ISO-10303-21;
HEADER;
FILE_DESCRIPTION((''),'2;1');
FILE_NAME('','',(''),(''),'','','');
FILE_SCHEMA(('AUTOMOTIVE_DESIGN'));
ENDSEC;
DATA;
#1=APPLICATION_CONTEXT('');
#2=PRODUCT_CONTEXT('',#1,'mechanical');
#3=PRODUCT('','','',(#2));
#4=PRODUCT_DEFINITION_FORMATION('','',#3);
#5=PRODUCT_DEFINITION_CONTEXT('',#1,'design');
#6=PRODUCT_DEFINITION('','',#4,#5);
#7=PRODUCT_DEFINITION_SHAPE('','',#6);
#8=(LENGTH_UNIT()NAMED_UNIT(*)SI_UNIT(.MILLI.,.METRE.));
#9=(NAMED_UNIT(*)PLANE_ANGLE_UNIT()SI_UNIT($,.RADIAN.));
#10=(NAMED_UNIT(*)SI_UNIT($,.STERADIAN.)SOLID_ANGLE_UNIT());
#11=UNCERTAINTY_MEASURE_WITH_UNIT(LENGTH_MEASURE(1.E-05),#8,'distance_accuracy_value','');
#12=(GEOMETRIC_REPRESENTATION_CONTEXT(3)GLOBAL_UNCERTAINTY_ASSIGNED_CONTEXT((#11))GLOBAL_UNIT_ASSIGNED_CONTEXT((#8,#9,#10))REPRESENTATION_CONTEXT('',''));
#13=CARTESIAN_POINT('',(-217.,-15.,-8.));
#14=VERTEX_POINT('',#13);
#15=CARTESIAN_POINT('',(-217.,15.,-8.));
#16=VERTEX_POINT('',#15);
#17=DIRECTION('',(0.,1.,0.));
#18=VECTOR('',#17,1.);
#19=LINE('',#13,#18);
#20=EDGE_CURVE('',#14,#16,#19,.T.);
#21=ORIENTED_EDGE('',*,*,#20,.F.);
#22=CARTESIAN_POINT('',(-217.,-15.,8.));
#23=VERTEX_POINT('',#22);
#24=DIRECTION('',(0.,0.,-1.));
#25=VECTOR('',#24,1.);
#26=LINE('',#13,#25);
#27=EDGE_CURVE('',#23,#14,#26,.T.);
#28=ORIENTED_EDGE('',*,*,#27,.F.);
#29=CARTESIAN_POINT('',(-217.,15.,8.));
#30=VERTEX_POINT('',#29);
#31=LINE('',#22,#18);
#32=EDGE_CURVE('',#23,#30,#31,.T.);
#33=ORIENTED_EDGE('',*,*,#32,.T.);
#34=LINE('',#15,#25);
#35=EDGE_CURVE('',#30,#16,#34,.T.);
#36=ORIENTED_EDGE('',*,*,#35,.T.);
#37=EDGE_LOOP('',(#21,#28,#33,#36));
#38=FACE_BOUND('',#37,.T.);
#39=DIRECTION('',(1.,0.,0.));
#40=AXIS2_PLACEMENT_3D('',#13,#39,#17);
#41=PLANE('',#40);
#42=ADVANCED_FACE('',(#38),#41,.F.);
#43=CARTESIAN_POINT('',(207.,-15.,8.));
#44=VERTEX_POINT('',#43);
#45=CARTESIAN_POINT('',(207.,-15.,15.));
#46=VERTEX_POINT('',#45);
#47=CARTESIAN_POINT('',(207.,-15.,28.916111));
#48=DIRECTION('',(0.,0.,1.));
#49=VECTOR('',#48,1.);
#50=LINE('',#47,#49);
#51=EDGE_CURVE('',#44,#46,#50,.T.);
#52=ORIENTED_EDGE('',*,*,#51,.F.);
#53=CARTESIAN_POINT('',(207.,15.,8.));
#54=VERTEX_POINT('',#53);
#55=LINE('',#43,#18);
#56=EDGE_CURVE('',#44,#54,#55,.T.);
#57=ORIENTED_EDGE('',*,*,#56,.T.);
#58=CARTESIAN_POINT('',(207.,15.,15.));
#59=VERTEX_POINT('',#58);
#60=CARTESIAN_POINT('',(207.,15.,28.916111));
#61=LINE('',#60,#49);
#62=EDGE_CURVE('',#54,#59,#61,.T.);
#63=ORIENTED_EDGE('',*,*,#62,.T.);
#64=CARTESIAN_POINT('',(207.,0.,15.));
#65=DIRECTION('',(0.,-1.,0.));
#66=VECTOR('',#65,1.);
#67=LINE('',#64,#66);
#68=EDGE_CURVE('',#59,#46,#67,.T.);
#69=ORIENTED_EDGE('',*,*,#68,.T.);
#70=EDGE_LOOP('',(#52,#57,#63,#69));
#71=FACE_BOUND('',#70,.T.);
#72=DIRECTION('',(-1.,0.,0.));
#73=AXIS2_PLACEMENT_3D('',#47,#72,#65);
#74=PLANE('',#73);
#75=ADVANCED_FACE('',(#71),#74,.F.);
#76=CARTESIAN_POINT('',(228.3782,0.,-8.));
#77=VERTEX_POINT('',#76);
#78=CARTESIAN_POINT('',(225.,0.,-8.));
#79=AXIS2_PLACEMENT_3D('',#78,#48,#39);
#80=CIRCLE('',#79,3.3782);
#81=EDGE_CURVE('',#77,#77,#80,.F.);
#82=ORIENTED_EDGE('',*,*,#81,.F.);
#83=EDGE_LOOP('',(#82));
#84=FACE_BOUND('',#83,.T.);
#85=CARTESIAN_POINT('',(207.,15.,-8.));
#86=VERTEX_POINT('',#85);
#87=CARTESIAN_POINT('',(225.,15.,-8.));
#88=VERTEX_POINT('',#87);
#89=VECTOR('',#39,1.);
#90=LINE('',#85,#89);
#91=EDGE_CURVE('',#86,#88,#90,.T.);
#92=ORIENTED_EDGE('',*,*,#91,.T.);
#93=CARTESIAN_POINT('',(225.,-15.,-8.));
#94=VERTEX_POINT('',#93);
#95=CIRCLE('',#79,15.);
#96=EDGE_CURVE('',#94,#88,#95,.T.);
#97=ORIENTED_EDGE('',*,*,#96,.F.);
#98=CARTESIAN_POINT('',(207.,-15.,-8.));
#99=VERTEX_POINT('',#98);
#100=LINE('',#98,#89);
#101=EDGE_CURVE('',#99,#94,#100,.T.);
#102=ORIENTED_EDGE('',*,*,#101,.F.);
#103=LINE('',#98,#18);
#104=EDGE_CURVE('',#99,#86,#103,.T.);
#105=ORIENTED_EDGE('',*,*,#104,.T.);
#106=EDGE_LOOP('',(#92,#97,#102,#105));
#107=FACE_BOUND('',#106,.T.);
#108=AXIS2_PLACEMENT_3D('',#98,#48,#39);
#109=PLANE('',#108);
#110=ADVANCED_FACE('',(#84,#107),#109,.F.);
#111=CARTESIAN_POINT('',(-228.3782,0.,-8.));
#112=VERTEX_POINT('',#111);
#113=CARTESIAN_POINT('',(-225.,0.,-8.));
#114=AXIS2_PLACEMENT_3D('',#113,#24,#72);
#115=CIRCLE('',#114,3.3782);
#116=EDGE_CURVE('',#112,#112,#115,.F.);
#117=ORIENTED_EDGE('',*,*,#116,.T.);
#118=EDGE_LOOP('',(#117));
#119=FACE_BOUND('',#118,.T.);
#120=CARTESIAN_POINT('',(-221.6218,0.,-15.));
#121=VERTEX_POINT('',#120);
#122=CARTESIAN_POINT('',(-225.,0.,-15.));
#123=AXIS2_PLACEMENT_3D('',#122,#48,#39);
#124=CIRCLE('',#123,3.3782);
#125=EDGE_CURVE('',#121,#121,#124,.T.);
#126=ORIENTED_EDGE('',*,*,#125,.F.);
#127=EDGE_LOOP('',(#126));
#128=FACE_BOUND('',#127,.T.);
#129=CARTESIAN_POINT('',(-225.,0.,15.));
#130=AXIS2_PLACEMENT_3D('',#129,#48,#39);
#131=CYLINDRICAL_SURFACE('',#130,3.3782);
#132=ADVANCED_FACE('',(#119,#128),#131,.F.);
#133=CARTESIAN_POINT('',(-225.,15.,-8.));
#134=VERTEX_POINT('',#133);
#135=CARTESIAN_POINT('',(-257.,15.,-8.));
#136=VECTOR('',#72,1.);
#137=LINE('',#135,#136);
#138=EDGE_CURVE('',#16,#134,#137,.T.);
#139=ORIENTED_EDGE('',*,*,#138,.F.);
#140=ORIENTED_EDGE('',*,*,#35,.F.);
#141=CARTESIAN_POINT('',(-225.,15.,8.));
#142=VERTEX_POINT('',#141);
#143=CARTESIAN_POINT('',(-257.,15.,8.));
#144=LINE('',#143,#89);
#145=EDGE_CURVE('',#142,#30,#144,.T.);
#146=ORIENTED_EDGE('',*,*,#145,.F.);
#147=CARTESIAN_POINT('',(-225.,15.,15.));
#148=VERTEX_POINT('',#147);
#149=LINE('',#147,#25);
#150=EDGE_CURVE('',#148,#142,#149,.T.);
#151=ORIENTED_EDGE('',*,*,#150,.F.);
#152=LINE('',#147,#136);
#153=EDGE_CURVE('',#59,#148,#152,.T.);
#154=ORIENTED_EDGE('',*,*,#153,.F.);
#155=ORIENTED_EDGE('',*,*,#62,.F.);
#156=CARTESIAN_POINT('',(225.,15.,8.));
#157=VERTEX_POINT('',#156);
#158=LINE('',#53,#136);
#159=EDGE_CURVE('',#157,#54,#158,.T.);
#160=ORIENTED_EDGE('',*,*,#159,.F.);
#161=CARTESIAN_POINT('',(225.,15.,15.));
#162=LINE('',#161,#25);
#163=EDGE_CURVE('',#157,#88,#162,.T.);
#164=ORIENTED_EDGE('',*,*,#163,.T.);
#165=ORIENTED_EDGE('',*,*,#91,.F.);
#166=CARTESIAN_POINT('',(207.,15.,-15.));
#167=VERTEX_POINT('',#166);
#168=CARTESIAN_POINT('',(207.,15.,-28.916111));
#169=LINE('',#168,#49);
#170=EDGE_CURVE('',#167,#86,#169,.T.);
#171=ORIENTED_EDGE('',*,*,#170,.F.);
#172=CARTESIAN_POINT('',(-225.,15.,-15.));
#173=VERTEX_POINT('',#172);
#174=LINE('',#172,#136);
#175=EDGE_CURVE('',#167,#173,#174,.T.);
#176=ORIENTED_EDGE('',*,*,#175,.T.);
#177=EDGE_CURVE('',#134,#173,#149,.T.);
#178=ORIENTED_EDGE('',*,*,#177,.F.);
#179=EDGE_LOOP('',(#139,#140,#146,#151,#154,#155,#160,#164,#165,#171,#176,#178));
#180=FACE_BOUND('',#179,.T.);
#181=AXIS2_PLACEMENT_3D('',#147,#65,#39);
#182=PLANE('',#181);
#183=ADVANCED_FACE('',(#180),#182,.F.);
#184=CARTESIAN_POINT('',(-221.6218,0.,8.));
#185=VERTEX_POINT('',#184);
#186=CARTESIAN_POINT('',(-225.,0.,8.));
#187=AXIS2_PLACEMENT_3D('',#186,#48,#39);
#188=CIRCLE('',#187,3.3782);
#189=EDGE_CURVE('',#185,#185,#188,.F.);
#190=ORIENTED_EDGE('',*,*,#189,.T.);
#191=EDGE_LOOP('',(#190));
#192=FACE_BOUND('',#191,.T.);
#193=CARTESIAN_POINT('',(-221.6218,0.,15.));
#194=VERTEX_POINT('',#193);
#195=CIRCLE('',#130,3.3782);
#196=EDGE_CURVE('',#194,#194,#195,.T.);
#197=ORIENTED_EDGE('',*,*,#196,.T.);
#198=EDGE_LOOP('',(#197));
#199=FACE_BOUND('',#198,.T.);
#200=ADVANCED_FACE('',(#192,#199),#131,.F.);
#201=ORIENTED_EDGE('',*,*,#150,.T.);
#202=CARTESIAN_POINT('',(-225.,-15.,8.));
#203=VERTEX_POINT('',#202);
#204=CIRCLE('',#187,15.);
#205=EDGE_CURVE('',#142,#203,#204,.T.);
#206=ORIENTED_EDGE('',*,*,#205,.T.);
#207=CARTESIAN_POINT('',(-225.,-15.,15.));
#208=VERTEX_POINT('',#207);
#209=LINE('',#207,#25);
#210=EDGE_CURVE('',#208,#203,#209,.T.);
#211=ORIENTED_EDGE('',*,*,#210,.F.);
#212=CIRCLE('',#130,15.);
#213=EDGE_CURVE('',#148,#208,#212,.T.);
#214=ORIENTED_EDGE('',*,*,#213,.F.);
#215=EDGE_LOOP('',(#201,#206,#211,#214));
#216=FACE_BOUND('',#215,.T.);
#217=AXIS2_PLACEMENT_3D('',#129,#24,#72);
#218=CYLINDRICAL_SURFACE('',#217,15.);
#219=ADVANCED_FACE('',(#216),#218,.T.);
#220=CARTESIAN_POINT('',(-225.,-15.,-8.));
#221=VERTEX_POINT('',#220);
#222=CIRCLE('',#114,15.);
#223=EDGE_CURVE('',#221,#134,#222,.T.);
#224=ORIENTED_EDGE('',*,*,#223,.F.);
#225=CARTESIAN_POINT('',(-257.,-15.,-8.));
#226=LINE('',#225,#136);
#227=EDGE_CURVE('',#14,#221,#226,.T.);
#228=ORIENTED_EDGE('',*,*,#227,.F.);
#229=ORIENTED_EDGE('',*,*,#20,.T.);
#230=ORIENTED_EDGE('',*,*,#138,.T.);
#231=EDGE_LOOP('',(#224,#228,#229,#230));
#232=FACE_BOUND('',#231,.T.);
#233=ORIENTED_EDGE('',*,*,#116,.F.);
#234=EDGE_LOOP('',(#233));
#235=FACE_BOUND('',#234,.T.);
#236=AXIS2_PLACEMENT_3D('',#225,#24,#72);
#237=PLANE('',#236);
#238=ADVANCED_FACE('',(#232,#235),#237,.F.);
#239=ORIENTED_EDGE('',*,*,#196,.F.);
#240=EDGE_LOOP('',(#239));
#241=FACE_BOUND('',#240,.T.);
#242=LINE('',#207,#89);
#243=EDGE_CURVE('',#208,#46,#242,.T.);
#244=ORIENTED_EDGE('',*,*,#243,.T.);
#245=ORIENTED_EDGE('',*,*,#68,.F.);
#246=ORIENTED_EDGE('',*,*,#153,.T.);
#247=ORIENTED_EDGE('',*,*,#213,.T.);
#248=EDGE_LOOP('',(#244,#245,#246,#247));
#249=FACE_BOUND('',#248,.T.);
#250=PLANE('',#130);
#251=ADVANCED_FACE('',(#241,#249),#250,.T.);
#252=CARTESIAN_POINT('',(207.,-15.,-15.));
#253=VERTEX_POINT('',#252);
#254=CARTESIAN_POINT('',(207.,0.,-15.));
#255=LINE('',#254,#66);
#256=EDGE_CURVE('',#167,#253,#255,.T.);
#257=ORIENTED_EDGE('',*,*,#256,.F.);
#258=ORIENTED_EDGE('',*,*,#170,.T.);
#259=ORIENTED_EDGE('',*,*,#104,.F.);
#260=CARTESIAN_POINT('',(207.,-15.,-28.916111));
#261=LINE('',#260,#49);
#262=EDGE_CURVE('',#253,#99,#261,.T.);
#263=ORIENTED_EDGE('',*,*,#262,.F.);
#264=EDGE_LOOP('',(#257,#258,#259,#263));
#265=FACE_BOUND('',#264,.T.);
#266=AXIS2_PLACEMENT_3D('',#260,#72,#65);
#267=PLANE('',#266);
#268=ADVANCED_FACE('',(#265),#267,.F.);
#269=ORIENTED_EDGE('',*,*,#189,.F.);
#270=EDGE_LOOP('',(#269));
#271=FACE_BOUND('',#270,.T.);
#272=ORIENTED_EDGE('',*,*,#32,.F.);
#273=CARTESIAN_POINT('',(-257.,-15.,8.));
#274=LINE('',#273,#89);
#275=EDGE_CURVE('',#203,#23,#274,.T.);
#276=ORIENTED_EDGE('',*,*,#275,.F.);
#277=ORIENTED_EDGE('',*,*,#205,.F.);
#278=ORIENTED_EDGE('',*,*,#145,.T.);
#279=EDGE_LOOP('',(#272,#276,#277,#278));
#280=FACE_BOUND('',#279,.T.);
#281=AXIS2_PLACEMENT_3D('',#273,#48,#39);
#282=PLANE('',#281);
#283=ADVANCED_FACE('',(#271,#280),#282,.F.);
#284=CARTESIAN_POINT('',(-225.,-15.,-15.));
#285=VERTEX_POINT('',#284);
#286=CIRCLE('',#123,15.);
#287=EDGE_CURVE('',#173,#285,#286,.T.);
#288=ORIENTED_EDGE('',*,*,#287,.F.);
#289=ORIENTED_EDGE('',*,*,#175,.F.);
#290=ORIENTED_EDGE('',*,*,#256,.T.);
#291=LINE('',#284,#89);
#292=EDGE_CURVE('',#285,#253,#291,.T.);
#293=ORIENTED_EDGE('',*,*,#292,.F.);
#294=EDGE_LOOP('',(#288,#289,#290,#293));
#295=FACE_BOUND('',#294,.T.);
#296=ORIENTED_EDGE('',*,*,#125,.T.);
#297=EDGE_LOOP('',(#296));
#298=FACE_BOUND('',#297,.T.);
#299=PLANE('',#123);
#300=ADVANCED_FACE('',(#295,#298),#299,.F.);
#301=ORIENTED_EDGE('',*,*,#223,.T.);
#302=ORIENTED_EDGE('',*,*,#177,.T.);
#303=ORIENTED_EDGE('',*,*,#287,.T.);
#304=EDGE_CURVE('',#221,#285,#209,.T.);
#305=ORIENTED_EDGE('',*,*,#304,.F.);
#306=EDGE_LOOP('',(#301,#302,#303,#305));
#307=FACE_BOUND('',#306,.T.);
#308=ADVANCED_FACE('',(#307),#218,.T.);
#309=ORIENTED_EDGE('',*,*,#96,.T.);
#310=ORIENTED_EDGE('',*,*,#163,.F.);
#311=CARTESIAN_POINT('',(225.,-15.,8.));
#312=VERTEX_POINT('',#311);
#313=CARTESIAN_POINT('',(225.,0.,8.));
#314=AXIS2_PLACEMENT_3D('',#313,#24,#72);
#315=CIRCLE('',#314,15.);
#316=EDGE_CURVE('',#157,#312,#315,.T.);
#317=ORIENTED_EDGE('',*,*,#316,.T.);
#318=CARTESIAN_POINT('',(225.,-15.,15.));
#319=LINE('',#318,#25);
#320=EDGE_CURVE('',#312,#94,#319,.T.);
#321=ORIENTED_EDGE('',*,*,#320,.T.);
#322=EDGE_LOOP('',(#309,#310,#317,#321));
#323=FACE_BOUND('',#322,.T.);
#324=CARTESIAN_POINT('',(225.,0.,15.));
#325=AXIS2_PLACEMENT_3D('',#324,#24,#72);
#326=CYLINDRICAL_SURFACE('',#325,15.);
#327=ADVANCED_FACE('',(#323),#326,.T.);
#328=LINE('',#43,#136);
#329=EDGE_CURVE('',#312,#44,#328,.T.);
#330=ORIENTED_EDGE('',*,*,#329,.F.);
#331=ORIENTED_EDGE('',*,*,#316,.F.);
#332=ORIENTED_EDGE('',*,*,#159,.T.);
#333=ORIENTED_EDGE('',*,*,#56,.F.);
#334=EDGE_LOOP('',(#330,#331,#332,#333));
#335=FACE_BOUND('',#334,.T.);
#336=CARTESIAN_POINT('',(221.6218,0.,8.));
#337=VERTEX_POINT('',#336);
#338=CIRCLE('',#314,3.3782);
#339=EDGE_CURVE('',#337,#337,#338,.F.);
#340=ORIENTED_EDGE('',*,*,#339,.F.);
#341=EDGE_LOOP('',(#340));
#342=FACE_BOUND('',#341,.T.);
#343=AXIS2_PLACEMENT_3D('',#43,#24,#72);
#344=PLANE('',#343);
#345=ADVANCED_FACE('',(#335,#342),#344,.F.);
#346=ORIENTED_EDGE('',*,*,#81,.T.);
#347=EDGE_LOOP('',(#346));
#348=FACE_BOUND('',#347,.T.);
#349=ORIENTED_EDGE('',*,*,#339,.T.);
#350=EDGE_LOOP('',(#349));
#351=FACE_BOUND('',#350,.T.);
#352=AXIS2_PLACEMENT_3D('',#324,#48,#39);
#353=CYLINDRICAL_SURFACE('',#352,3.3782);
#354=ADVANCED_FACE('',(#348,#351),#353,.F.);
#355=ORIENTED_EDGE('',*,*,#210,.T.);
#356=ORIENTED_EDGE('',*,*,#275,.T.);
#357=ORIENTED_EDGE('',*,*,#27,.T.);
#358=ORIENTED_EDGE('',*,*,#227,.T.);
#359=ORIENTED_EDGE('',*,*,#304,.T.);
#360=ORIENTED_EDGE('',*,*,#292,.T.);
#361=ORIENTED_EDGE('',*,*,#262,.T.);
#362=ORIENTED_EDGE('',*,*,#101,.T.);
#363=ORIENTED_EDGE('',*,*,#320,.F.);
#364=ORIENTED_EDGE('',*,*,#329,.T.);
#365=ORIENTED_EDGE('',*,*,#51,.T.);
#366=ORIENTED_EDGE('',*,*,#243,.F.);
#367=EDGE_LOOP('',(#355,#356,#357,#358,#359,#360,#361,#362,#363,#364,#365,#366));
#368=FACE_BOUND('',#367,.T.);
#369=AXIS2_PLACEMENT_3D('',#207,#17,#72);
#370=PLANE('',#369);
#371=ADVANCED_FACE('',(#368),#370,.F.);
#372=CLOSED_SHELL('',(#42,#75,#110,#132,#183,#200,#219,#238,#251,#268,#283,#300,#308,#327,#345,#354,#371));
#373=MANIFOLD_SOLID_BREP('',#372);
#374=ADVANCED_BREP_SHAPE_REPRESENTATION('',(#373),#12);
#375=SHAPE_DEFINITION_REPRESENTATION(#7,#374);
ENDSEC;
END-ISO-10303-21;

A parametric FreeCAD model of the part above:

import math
import FreeCAD as App
import Part
import Sketcher
from FreeCAD import Vector


def add_polygon(sketch, points):
    """Adds a closed chain of lines whose ends are joined by coincident constraints."""
    first, n = sketch.GeometryCount, len(points)
    for a, b in zip(points, points[1:] + points[:1]):
        sketch.addGeometry(Part.LineSegment(App.Vector(*a, 0), App.Vector(*b, 0)), False)
    for i in range(n):
        sketch.addConstraint(Sketcher.Constraint("Coincident", first + i, 2, first + (i + 1) % n, 1))

doc = App.newDocument("Part")
body = doc.addObject("PartDesign::Body", "Body")

sketch1 = body.newObject("Sketcher::SketchObject", "Sketch")
sketch1.AttachmentSupport = (doc.getObject("XY_Plane"), [""])
sketch1.MapMode = "FlatFace"
sketch1.addGeometry([
    Part.LineSegment(Vector(225, 15, 0), Vector(-225, 15, 0)),
    Part.ArcOfCircle(Part.Circle(Vector(-225, 0, 0), Vector(0, 0, 1), 15), math.radians(90), math.radians(270)),
    Part.LineSegment(Vector(-225, -15, 0), Vector(225, -15, 0)),
    Part.ArcOfCircle(Part.Circle(Vector(225, 0, 0), Vector(0, 0, 1), 15), math.radians(-90), math.radians(90)),
], False)
sketch1.addConstraint([
    Sketcher.Constraint("Tangent", 0, 2, 1, 1),
    Sketcher.Constraint("Tangent", 1, 2, 2, 1),
    Sketcher.Constraint("Tangent", 2, 2, 3, 1),
    Sketcher.Constraint("Tangent", 3, 2, 0, 1),
    Sketcher.Constraint("Horizontal", 0),
    Sketcher.Constraint("Horizontal", 2),
    Sketcher.Constraint("Symmetric", 1, 3, 3, 3, -1, 1),
    Sketcher.Constraint("Radius", 1, 15.0),
    Sketcher.Constraint("DistanceX", 0, 2, 0, 1, 450.0),
])
pad1 = body.newObject("PartDesign::Pad", "Pad")
pad1.Profile = sketch1
pad1.Length = 30
pad1.Midplane = True

sketch2 = body.newObject("Sketcher::SketchObject", "Sketch001")
sketch2.AttachmentSupport = (doc.getObject("XY_Plane"), [""])
sketch2.MapMode = "FlatFace"
sketch2.AttachmentOffset = App.Placement(Vector(0, 0, 15), App.Rotation())
sketch2.addGeometry([
    Part.Circle(Vector(-225, 0, 0), Vector(0, 0, 1), 3.4),
    Part.Circle(Vector(225, 0, 0), Vector(0, 0, 1), 3.4),
], False)
sketch2.addConstraint([
    Sketcher.Constraint("Equal", 0, 1),
    Sketcher.Constraint("Symmetric", 0, 3, 1, 3, -1, 1),
    Sketcher.Constraint("PointOnObject", 0, 3, -1),
    Sketcher.Constraint("DistanceX", 0, 3, -1, 1, 225.0),
    Sketcher.Constraint("Diameter", 0, 6.7564),
])
doc.recompute()
hole = body.newObject("PartDesign::Hole", "Hole")
hole.Profile = sketch2
hole.ThreadType = "None"
hole.Diameter = 6.7564
hole.DepthType = "ThroughAll"

sketch3 = body.newObject("Sketcher::SketchObject", "Sketch002")
sketch3.AttachmentSupport = (doc.getObject("XZ_Plane"), [""])
sketch3.MapMode = "FlatFace"
sketch3.AttachmentOffset = App.Placement(Vector(0, 0, -15), App.Rotation())
add_polygon(sketch3, [(-257, -8), (-257, 8), (-217, 8), (-217, -8)])
add_polygon(sketch3, [(207, -29), (207, -8), (247, -8), (247, -29)])
add_polygon(sketch3, [(207, 8), (207, 29), (247, 29), (247, 8)])
sketch3.addConstraint([
    Sketcher.Constraint("Vertical", 0),
    Sketcher.Constraint("Horizontal", 1),
    Sketcher.Constraint("Vertical", 2),
    Sketcher.Constraint("Horizontal", 3),
    Sketcher.Constraint("Vertical", 4),
    Sketcher.Constraint("Horizontal", 5),
    Sketcher.Constraint("Vertical", 6),
    Sketcher.Constraint("Horizontal", 7),
    Sketcher.Constraint("Vertical", 8),
    Sketcher.Constraint("Horizontal", 9),
    Sketcher.Constraint("Vertical", 10),
    Sketcher.Constraint("Horizontal", 11),
    Sketcher.Constraint("Symmetric", 7, 2, 8, 2, -1),
    Sketcher.Constraint("Symmetric", 5, 2, 10, 2, -1),
    Sketcher.Constraint("Horizontal", 3, 2, 4, 2),
    Sketcher.Constraint("Horizontal", 1, 2, 10, 2),
    Sketcher.Constraint("Equal", 3, 5),
    Sketcher.Constraint("DistanceX", 1, 1, 1, 2, 40.0),
    Sketcher.Constraint("DistanceY", 0, 1, 0, 2, 16.0),
    Sketcher.Constraint("DistanceX", 0, 2, -1, 1, 257.0),
    Sketcher.Constraint("DistanceX", -1, 1, 4, 2, 207.0),
    Sketcher.Constraint("DistanceY", 4, 1, 4, 2, 20.916111),
])
pocket1 = body.newObject("PartDesign::Pocket", "Pocket")
pocket1.Profile = sketch3
pocket1.Type = "ThroughAll"
pocket1.Reversed = True

doc.recompute()
